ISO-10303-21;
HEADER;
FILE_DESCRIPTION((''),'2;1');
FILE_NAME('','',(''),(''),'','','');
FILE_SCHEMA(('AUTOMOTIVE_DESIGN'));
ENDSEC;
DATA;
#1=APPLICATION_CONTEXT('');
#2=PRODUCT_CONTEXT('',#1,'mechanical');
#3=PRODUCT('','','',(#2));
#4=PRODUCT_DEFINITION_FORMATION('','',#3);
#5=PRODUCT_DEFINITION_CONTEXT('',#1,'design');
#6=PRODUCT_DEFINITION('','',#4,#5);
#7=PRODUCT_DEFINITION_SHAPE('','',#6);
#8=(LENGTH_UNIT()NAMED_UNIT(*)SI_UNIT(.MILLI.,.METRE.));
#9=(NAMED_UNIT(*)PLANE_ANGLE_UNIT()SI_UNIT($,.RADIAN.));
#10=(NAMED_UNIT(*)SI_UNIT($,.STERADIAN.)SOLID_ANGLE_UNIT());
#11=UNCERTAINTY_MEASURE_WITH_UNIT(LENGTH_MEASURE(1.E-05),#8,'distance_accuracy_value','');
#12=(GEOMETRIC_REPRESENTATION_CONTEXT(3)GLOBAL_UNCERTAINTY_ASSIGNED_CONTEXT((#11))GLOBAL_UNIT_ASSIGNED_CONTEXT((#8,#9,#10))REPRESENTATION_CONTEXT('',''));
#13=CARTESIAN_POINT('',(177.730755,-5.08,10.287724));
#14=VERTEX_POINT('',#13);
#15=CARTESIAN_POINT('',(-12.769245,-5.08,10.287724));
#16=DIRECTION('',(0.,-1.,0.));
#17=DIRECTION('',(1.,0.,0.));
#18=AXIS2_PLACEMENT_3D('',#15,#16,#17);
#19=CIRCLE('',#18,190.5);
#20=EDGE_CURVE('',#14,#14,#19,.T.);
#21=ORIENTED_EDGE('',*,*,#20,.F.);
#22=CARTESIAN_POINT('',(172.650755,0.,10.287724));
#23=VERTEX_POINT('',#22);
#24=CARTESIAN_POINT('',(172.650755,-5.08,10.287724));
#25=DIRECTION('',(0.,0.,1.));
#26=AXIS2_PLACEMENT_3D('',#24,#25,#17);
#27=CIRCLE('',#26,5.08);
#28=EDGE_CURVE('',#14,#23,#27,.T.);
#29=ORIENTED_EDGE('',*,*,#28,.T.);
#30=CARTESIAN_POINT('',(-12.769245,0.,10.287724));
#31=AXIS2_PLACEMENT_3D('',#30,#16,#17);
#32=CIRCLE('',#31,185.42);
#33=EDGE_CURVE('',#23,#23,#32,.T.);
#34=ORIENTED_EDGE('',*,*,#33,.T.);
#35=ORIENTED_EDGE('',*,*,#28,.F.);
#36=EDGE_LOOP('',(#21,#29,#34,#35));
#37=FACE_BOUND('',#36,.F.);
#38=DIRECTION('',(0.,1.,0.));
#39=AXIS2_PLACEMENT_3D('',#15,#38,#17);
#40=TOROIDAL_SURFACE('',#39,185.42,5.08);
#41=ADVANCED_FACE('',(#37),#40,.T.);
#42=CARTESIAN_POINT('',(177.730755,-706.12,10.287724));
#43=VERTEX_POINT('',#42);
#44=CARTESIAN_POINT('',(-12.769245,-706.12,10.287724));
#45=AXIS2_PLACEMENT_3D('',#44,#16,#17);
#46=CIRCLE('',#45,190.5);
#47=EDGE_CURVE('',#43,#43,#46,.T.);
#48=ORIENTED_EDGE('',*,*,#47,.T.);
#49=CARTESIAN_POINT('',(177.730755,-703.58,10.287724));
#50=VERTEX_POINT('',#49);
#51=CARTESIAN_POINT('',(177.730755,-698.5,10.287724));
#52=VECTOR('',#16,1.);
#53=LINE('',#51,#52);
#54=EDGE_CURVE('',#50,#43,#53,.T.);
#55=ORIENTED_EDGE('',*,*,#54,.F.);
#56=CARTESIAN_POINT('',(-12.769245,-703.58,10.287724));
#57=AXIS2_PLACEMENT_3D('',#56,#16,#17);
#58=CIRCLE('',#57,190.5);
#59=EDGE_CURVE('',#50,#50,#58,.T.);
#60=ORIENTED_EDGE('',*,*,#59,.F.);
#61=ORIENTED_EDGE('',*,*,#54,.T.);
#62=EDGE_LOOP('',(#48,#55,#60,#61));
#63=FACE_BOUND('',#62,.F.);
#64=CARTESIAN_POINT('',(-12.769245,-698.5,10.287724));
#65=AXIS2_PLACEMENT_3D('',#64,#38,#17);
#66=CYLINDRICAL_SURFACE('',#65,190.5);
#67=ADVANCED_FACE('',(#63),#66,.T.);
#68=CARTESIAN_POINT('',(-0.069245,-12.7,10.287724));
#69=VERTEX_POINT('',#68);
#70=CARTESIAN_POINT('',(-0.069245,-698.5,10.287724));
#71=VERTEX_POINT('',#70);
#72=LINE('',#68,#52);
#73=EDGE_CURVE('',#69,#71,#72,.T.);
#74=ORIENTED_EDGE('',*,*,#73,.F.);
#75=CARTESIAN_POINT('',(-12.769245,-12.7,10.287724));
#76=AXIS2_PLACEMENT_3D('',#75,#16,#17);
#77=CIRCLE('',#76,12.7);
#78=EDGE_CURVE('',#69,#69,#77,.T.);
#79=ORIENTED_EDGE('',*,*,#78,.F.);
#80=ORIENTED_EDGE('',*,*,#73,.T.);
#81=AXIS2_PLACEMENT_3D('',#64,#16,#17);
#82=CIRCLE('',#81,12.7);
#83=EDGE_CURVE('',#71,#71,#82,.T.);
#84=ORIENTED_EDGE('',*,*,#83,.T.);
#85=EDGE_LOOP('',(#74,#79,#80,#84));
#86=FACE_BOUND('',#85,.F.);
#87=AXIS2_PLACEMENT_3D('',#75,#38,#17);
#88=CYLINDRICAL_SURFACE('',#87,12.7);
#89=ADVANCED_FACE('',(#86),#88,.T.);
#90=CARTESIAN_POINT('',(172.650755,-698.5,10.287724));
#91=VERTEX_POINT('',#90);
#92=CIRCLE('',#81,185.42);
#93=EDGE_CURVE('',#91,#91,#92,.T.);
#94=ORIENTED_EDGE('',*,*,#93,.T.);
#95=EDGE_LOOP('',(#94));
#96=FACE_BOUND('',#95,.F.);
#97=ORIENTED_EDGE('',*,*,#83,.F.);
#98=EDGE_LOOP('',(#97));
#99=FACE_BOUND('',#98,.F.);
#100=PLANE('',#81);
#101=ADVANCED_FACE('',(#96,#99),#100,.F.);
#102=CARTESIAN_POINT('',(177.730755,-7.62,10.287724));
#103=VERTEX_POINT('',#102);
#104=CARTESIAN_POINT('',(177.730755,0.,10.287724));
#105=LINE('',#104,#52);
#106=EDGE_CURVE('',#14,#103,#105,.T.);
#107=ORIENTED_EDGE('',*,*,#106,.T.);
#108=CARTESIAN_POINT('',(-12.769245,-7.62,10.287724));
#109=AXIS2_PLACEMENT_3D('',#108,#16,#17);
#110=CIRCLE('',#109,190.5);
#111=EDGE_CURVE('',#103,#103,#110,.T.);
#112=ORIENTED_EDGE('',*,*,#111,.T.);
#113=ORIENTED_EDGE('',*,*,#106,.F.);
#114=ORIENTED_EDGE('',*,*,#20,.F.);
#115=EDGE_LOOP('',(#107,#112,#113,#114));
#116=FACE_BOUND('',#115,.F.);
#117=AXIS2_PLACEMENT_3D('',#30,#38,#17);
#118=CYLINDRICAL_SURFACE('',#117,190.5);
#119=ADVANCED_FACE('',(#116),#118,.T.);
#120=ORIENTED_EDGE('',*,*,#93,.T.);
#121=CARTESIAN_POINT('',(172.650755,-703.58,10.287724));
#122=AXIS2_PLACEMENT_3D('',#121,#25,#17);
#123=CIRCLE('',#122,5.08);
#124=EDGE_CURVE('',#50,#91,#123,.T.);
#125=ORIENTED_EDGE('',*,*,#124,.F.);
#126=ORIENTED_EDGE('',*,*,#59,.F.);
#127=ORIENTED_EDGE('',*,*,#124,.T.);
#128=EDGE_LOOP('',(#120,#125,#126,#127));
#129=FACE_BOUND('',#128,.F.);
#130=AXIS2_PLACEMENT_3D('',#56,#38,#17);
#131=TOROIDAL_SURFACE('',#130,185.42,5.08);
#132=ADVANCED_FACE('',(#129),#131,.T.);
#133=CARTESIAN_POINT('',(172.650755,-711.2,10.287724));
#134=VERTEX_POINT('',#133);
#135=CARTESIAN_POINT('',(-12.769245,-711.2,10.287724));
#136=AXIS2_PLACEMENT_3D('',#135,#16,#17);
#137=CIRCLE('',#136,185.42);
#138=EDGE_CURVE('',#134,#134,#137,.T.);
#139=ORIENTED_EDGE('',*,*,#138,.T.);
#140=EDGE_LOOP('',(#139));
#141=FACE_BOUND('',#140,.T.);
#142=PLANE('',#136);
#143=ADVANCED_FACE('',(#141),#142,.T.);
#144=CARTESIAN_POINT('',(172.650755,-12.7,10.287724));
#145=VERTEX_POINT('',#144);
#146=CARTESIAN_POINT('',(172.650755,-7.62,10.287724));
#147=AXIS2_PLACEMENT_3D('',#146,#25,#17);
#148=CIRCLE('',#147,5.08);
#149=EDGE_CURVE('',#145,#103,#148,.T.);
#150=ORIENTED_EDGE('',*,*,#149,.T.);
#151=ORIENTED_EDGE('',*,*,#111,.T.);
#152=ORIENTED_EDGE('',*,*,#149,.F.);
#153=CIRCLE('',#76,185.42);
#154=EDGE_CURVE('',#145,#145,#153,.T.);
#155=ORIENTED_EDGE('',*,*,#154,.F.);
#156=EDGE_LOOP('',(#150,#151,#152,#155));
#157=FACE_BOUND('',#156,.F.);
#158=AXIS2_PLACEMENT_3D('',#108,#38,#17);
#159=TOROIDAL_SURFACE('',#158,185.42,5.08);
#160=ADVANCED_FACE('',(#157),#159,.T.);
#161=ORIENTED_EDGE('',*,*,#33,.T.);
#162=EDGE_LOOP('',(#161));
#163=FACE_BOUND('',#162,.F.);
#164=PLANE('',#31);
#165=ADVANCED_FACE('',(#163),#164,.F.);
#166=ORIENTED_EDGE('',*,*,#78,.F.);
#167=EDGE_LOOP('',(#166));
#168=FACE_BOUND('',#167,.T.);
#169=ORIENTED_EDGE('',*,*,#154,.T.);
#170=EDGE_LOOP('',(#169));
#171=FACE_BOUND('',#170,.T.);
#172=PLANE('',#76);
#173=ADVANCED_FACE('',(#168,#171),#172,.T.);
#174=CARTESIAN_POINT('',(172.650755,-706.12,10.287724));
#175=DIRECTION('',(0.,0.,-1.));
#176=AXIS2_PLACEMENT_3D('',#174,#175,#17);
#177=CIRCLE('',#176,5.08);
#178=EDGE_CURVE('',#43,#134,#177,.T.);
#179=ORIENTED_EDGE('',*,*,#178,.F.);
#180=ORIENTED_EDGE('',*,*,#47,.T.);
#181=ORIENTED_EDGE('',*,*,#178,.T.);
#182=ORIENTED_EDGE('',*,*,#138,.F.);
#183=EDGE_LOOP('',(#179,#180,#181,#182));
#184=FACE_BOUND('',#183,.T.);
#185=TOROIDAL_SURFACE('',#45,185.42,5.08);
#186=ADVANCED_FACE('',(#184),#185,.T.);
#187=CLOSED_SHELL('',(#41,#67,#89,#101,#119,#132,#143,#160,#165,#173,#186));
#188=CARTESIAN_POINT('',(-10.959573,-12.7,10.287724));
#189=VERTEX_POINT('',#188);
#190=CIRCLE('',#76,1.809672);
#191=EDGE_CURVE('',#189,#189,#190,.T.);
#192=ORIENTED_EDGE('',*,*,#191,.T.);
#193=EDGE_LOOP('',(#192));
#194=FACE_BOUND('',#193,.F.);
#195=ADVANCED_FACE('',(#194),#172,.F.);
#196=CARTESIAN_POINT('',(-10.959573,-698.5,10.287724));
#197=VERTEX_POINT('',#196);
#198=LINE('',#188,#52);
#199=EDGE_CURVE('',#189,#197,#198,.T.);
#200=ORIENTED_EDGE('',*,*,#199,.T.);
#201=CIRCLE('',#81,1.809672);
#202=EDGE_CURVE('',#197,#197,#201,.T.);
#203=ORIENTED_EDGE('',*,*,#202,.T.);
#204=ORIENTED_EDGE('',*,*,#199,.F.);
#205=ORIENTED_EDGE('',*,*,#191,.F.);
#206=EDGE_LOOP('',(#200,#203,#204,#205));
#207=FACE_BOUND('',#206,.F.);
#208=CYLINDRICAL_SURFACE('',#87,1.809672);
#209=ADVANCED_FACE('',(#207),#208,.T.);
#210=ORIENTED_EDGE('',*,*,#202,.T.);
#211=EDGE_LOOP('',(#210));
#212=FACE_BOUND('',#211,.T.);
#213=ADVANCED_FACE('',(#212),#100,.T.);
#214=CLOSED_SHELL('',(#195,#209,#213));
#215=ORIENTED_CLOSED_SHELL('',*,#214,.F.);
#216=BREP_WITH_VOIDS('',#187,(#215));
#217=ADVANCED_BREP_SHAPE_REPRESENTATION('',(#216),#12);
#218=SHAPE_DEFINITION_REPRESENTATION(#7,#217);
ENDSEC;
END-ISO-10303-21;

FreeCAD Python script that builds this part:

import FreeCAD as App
import Part
import Sketcher
Q = App.Units.Quantity


def edges_at(feature, points):
    """Names of the edges that pass closest to the given points."""
    edges = feature.Shape.Edges
    near = lambda p: min(range(len(edges)), key=lambda i: edges[i].distToShape(Part.Vertex(*p))[0])
    return sorted({f"Edge{near(p) + 1}" for p in points})

doc = App.newDocument("Part")
params = doc.addObject("Spreadsheet::Sheet", "Params")
for row, (alias, value) in enumerate([
    ("sketch1_diameter", "15 in"),
    ("pad1_length", "0.5 in"),
    ("sketch2_diameter", "1 in"),
    ("pad2_length", "27 in"),
    ("sketch3_diameter", "15 in"),
    ("pad3_length", "0.5 in"),
    ("fillet_radius", "0.2 in"),
], start=1):
    params.set(f"A{row}", alias)
    params.set(f"B{row}", "=" + value)
    params.setAlias(f"B{row}", alias)

body = doc.addObject("PartDesign::Body", "Body")

sketch1 = body.newObject("Sketcher::SketchObject", "Sketch")
sketch1.AttachmentSupport = (doc.getObject("XZ_Plane"), [""])
sketch1.MapMode = "FlatFace"
sketch1.addGeometry(Part.Circle(App.Vector(-13, 10, 0), App.Vector(0, 0, 1), 190), False)
sketch1.addConstraint(Sketcher.Constraint("Diameter", 0, Q("15 in")))
sketch1.addConstraint(Sketcher.Constraint("DistanceX", 0, 3, -1, 1, Q("12.769245 mm")))
sketch1.addConstraint(Sketcher.Constraint("DistanceY", -1, 1, 0, 3, Q("10.287724 mm")))
sketch1.setExpression("Constraints[0]", "Params.sketch1_diameter")
pad1 = body.newObject("PartDesign::Pad", "Pad")
pad1.Profile = sketch1
pad1.setExpression("Length", "Params.pad1_length")

sketch2 = body.newObject("Sketcher::SketchObject", "Sketch001")
sketch2.AttachmentSupport = (doc.getObject("XZ_Plane"), [""])
sketch2.MapMode = "FlatFace"
sketch2.AttachmentOffset = App.Placement(App.Vector(0, 0, 0.5 * 25.4), App.Rotation())
sketch2.addGeometry(Part.Circle(App.Vector(-12.8, 10.3, 0), App.Vector(0, 0, 1), 12.7), False)
sketch2.addGeometry(Part.Circle(App.Vector(-12.8, 10.3, 0), App.Vector(0, 0, 1), 1.8), False)
sketch2.addConstraint(Sketcher.Constraint("Coincident", 1, 3, 0, 3))
sketch2.addConstraint(Sketcher.Constraint("Diameter", 0, Q("1 in")))
sketch2.addConstraint(Sketcher.Constraint("Diameter", 1, Q("3.619344 mm")))
sketch2.addConstraint(Sketcher.Constraint("DistanceX", 0, 3, -1, 1, Q("12.769245 mm")))
sketch2.addConstraint(Sketcher.Constraint("DistanceY", -1, 1, 0, 3, Q("10.287724 mm")))
sketch2.setExpression("Constraints[1]", "Params.sketch2_diameter")
pad2 = body.newObject("PartDesign::Pad", "Pad001")
pad2.Profile = sketch2
pad2.setExpression("Length", "Params.pad2_length")

sketch3 = body.newObject("Sketcher::SketchObject", "Sketch002")
sketch3.AttachmentSupport = (doc.getObject("XZ_Plane"), [""])
sketch3.MapMode = "FlatFace"
sketch3.AttachmentOffset = App.Placement(App.Vector(0, 0, 27.5 * 25.4), App.Rotation())
sketch3.addGeometry(Part.Circle(App.Vector(-13, 10, 0), App.Vector(0, 0, 1), 190), False)
sketch3.addConstraint(Sketcher.Constraint("Diameter", 0, Q("15 in")))
sketch3.addConstraint(Sketcher.Constraint("DistanceX", 0, 3, -1, 1, Q("12.769245 mm")))
sketch3.addConstraint(Sketcher.Constraint("DistanceY", -1, 1, 0, 3, Q("10.287724 mm")))
sketch3.setExpression("Constraints[0]", "Params.sketch3_diameter")
pad3 = body.newObject("PartDesign::Pad", "Pad002")
pad3.Profile = sketch3
pad3.setExpression("Length", "Params.pad3_length")
doc.recompute()

fillet = body.newObject("PartDesign::Fillet", "Fillet")
fillet.Base = (pad3, edges_at(pad3, [
    (-203.269, -711.2, 10.288),
    (-203.269, -698.5, 10.288),
    (-203.269, -12.7, 10.288),
    (-203.269, 0, 10.288),
]))
fillet.setExpression("Radius", "Params.fillet_radius")

doc.recompute()
